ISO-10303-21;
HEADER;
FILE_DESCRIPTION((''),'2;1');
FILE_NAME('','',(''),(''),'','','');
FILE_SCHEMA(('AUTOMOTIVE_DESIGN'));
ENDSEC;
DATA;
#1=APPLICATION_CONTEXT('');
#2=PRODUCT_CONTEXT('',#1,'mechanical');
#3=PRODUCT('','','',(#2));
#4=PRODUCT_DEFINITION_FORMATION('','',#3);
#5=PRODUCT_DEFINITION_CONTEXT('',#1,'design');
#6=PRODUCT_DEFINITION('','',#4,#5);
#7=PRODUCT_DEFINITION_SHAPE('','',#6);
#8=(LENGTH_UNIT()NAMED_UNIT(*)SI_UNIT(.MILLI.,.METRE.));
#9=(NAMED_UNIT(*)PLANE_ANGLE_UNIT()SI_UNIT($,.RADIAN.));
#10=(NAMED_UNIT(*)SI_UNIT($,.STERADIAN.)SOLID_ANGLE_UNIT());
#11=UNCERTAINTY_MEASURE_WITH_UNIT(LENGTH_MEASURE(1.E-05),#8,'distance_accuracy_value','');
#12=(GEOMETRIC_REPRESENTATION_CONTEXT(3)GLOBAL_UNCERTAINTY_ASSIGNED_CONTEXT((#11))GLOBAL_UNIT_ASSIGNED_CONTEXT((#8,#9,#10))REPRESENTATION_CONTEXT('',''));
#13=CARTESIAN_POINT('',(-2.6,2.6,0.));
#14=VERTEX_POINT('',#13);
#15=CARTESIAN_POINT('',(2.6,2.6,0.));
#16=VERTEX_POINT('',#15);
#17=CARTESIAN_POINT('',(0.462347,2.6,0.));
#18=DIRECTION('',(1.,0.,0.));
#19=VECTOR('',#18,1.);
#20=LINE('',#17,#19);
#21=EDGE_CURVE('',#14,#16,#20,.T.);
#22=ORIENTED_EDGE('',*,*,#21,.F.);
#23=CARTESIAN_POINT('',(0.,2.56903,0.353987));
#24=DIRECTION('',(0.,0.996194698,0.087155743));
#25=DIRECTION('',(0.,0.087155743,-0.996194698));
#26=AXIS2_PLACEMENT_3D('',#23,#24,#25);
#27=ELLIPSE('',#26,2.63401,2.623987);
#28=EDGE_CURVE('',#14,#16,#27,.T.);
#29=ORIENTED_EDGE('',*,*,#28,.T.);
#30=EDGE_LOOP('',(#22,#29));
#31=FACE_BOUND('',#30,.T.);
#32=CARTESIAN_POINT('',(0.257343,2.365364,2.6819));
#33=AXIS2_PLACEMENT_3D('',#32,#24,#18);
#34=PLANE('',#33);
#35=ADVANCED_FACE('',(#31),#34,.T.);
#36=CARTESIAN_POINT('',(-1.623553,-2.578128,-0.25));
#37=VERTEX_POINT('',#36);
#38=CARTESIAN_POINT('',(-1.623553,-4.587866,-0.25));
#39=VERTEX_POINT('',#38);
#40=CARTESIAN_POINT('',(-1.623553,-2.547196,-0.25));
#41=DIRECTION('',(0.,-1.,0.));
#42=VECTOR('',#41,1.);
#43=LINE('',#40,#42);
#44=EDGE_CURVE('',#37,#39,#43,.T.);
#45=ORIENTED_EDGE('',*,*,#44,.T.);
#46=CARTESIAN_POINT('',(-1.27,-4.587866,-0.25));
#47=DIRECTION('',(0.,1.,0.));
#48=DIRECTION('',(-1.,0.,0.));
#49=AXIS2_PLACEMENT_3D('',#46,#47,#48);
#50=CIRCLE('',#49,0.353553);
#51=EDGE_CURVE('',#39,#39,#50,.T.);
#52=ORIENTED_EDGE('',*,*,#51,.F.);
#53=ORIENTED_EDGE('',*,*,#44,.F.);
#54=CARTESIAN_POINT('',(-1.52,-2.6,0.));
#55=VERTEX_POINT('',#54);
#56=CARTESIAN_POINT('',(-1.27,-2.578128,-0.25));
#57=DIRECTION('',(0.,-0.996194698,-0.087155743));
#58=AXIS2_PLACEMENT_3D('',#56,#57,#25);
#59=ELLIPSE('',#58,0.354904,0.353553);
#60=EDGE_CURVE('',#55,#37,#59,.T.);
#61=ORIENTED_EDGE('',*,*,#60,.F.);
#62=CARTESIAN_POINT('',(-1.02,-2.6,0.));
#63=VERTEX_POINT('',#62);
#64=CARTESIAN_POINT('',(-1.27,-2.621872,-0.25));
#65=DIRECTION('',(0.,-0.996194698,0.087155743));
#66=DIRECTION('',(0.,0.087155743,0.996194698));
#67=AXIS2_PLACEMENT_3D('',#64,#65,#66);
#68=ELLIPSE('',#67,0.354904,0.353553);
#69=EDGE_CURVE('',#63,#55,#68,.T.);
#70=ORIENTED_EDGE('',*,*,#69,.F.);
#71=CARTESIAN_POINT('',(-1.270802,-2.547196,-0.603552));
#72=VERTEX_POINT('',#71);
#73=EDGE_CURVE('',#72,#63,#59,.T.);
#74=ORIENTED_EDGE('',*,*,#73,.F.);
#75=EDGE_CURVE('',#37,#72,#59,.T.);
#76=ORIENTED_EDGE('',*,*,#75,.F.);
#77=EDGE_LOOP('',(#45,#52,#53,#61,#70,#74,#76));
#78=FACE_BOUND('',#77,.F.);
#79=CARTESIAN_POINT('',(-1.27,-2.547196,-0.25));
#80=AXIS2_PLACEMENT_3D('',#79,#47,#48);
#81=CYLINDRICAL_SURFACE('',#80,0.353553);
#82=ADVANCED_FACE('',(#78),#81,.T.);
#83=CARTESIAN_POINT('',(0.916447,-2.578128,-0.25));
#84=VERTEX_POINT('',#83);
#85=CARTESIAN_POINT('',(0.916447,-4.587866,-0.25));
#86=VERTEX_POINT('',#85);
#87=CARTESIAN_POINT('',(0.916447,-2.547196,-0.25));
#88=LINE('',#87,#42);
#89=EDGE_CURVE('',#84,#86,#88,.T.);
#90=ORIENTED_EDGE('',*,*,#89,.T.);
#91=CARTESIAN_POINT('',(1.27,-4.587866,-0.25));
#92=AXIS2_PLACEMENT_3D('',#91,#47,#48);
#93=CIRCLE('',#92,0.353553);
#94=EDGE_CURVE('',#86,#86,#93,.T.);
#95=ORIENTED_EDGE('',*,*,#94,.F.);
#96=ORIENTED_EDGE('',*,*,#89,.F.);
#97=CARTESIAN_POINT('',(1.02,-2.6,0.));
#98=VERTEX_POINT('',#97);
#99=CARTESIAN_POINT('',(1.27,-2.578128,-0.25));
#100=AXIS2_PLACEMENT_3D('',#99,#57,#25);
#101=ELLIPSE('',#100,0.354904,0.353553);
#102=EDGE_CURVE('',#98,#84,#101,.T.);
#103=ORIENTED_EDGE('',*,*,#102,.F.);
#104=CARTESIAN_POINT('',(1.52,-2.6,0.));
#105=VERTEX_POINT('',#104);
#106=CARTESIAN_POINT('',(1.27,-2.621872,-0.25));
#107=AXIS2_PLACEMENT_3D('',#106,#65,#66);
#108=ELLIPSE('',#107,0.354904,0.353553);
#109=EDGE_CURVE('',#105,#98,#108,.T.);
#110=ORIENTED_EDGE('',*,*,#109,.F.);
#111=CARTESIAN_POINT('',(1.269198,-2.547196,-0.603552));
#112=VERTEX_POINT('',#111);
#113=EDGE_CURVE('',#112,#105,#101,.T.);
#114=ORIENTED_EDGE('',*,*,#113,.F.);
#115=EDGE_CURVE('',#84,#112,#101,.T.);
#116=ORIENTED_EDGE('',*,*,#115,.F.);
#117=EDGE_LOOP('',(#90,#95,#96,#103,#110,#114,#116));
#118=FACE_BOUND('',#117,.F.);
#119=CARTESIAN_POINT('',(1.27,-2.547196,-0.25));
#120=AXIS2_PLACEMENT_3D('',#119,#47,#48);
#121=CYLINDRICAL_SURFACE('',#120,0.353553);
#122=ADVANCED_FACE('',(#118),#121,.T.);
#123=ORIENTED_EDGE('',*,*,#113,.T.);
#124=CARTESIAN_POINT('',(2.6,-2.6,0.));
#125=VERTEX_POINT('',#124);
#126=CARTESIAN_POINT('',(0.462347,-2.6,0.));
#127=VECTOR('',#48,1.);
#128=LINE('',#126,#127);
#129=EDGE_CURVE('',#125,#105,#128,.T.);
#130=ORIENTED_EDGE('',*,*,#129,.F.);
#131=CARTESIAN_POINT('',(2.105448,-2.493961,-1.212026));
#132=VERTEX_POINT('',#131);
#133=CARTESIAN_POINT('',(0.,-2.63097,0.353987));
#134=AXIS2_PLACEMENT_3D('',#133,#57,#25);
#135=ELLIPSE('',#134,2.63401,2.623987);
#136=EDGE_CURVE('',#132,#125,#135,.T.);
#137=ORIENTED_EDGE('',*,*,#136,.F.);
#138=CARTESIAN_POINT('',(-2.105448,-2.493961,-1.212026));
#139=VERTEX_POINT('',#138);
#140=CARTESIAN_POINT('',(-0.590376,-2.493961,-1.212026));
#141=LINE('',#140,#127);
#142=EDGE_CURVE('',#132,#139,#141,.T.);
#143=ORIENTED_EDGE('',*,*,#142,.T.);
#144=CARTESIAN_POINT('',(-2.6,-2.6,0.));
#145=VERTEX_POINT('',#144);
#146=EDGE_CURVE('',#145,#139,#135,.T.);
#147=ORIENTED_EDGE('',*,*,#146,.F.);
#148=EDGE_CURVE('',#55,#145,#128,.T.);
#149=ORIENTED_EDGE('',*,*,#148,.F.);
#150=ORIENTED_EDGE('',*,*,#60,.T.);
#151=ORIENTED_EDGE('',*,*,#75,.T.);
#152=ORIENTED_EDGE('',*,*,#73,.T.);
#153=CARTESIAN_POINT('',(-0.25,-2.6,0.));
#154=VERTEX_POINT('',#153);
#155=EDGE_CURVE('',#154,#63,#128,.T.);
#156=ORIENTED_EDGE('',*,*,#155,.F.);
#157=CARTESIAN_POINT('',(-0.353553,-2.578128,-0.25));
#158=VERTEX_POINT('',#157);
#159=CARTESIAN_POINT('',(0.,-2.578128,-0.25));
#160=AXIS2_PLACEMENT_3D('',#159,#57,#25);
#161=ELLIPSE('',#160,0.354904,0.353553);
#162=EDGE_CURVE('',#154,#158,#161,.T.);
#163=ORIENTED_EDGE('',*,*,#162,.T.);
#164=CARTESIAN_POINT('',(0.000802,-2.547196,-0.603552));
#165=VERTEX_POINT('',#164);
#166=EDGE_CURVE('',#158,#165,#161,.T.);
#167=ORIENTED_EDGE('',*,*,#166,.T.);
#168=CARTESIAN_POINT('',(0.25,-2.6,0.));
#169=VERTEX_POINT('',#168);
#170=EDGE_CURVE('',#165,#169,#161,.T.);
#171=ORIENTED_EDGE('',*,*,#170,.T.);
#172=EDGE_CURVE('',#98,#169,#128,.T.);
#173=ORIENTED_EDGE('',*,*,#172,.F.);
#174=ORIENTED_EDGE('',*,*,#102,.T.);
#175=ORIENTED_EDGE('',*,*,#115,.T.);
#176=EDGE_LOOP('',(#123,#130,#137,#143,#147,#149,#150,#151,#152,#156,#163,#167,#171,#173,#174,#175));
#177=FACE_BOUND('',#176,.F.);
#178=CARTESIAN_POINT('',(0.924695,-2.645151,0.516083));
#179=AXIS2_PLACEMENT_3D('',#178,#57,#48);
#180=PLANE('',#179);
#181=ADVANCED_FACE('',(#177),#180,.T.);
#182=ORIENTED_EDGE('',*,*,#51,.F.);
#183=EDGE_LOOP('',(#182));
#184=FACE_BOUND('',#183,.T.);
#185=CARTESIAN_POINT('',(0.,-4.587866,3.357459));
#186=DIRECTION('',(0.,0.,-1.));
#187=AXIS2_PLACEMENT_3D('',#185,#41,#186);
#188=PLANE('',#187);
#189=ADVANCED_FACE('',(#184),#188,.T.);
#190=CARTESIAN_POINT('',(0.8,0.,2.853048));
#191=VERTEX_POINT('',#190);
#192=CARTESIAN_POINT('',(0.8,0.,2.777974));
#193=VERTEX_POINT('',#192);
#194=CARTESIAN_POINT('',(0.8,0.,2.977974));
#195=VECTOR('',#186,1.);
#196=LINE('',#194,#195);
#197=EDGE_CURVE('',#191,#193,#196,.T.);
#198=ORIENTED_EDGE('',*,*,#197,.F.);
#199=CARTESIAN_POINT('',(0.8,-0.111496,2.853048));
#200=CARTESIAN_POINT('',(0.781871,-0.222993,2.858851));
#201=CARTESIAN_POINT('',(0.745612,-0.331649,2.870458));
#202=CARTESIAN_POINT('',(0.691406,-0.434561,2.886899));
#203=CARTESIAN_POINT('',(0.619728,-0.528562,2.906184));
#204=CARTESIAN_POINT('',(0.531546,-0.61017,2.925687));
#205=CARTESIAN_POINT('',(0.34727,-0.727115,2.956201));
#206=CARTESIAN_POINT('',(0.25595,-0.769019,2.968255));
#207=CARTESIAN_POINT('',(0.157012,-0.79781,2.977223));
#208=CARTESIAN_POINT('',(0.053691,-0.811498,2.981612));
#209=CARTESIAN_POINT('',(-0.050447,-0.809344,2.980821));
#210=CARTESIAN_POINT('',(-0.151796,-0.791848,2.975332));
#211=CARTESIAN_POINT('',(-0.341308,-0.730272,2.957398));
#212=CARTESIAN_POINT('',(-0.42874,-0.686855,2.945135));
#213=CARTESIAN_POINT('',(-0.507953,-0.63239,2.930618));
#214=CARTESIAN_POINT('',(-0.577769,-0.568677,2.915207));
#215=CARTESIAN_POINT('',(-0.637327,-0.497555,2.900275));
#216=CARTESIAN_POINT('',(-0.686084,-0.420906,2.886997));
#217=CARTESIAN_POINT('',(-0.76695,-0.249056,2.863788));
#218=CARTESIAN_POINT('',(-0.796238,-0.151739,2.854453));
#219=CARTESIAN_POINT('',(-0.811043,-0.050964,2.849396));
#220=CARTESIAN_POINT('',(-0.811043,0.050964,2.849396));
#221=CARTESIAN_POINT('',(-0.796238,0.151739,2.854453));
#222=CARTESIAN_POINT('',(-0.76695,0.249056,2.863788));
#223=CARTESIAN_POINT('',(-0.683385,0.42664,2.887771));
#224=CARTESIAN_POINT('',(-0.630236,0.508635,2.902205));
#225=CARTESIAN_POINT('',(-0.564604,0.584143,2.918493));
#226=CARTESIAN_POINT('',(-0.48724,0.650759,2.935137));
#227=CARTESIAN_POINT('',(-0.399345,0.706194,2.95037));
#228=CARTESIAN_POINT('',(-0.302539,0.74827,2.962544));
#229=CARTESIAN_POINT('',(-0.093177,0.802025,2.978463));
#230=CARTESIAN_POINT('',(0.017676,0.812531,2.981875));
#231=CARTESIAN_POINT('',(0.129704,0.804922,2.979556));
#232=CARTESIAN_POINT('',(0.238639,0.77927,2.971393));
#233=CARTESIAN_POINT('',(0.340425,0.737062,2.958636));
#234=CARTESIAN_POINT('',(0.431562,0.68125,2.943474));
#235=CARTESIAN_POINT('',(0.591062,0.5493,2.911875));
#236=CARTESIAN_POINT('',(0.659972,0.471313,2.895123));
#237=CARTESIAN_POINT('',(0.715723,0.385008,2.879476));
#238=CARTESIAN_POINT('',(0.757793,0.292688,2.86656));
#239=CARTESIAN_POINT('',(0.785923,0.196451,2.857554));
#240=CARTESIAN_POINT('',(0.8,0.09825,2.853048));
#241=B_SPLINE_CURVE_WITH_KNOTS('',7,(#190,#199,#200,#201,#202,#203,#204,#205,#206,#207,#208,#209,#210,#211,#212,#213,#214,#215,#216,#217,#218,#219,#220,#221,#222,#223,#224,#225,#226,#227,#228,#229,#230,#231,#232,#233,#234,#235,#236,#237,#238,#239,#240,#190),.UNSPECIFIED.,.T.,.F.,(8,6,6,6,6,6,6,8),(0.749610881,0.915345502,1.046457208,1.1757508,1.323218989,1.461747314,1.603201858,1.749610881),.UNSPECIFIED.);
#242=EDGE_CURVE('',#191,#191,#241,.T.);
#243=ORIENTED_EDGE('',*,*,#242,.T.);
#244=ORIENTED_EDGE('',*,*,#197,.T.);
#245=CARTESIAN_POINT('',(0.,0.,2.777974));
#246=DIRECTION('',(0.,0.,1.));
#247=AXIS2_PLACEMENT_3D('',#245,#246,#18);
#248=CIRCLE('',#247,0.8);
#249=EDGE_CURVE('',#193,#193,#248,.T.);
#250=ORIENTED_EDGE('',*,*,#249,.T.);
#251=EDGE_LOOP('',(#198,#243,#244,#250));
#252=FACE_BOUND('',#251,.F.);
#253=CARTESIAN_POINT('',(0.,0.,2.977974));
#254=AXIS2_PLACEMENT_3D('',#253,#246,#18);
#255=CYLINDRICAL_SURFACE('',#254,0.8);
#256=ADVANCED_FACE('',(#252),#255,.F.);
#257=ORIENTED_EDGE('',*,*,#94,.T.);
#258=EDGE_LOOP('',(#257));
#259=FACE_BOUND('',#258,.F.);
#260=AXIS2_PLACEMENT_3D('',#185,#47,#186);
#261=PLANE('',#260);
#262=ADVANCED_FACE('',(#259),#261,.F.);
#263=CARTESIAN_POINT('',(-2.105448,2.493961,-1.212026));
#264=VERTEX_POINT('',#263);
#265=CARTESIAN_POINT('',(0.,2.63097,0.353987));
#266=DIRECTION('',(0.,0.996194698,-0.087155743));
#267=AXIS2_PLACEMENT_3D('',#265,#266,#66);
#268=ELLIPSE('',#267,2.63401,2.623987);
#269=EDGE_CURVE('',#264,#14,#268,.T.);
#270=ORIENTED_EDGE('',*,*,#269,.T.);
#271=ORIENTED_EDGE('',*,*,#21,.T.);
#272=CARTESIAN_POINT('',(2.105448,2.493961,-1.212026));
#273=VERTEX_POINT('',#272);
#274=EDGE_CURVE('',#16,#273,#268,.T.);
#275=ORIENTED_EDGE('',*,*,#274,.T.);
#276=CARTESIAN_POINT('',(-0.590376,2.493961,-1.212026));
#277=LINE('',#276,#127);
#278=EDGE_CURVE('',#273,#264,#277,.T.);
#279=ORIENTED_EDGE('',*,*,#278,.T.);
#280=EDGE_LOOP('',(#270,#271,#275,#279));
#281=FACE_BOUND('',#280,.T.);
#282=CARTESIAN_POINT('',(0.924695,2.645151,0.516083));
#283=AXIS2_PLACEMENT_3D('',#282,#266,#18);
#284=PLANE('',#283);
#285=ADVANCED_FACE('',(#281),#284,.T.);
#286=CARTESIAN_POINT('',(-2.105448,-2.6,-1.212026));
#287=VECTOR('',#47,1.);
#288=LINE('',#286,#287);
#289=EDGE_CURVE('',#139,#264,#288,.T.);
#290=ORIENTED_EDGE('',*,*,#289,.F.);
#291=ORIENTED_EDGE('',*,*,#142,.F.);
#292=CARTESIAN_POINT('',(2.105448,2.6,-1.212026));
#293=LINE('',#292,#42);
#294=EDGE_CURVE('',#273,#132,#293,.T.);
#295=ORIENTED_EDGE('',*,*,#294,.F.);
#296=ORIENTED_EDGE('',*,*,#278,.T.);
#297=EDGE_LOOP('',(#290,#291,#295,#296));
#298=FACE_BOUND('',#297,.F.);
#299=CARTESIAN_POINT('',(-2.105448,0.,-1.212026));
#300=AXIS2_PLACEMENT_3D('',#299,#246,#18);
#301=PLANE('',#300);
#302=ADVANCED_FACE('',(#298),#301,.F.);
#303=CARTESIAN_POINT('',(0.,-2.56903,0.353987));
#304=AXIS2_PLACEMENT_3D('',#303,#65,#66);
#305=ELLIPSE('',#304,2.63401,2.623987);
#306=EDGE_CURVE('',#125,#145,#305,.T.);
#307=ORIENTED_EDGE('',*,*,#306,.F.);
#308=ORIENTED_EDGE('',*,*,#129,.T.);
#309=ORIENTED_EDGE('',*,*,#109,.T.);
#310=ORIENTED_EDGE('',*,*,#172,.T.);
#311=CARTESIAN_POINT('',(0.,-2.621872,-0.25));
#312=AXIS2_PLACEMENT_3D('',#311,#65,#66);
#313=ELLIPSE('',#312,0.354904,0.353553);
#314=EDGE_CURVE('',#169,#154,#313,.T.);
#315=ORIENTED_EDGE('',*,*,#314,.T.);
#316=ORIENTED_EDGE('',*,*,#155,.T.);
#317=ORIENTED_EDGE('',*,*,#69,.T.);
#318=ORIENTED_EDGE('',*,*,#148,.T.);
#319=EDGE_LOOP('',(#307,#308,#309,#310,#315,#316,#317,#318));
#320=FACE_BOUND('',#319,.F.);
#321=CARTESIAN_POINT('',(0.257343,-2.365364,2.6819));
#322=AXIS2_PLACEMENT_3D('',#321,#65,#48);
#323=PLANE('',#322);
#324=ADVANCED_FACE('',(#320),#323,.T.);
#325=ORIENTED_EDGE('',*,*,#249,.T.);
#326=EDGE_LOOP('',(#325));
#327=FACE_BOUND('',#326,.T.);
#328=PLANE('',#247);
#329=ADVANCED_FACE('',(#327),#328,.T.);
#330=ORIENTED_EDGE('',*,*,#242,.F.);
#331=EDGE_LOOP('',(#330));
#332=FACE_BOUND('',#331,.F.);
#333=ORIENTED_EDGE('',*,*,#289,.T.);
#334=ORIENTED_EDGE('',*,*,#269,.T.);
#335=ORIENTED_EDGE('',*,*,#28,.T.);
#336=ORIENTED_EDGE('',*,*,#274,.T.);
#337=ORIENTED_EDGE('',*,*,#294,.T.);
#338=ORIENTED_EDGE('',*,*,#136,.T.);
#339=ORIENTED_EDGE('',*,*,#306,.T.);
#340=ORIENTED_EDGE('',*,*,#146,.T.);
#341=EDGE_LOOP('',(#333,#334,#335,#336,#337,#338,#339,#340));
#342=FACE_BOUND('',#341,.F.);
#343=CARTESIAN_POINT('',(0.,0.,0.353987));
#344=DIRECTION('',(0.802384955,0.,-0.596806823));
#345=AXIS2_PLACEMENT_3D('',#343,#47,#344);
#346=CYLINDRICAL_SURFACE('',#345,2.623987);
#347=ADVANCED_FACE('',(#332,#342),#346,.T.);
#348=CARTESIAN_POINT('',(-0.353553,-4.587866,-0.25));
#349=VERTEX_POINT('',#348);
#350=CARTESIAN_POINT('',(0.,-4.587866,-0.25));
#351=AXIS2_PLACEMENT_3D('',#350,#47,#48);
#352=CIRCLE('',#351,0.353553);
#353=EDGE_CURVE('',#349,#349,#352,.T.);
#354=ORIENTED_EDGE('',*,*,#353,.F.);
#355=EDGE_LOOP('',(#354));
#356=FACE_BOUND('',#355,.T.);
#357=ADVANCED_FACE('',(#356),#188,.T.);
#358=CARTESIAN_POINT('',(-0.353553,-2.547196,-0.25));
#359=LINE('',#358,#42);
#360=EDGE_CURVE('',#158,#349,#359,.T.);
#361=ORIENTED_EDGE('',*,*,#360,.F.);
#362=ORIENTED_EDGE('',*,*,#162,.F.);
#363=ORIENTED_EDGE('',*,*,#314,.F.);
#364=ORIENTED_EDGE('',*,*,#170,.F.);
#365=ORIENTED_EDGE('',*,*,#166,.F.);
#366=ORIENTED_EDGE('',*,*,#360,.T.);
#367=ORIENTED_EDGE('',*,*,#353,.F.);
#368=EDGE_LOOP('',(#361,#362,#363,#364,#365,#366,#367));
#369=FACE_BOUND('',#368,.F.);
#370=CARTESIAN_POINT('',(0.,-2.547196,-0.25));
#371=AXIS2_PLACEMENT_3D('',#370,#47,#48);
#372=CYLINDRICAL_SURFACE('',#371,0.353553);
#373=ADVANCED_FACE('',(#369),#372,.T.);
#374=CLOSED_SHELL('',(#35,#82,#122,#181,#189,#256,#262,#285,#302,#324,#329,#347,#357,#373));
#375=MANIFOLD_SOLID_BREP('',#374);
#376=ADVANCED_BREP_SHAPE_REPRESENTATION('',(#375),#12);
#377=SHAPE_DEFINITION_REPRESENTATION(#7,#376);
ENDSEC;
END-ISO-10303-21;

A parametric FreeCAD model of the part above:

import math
import FreeCAD as App
import Part
import Sketcher

V = App.Vector
Q = App.Units.Quantity


def add_polygon(sketch, points):
    """Adds a closed chain of lines whose ends are joined by coincident constraints."""
    first, n = sketch.GeometryCount, len(points)
    for a, b in zip(points, points[1:] + points[:1]):
        sketch.addGeometry(Part.LineSegment(App.Vector(*a, 0), App.Vector(*b, 0)), False)
    for i in range(n):
        sketch.addConstraint(Sketcher.Constraint("Coincident", first + i, 2, first + (i + 1) % n, 1))

doc = App.newDocument("Part")
body = doc.addObject("PartDesign::Body", "Body")

# Sketch on XZ plane
sketch1 = body.newObject("Sketcher::SketchObject", "Sketch")
sketch1.AttachmentSupport = (doc.getObject("XZ_Plane"), [""])
sketch1.MapMode = "FlatFace"
sketch1.addGeometry(Part.LineSegment(V(2.105448, -1.212026, 0), V(-2.105448, -1.212026, 0)), False)
sketch1.addGeometry(Part.ArcOfCircle(Part.Circle(V(0, 0.353987, 0), V(0, 0, 1), 2.623987), math.radians(-36.641544), math.radians(216.641544)), False)
sketch1.addConstraint(Sketcher.Constraint("Coincident", 0, 1, 1, 1))
sketch1.addConstraint(Sketcher.Constraint("Coincident", 1, 2, 0, 2))
sketch1.addConstraint(Sketcher.Constraint("Horizontal", 0))
sketch1.addConstraint(Sketcher.Constraint("PointOnObject", 1, 3, -2))
sketch1.addConstraint(Sketcher.Constraint("Radius", 1, Q("2.623987 mm")))
sketch1.addConstraint(Sketcher.Constraint("DistanceX", 0, 2, 0, 1, Q("4.210895 mm")))
sketch1.addConstraint(Sketcher.Constraint("DistanceY", -1, 1, 1, 3, Q("0.353987 mm")))
pad1 = body.newObject("PartDesign::Pad", "Pad")
pad1.Profile = sketch1
pad1.Length = 5.2
pad1.Midplane = True

# Sketch on an angled plane
sketch2 = body.newObject("Sketcher::SketchObject", "Sketch001")
sketch2.Placement = App.Placement(V(0, 2.58025, -0.225743), App.Rotation(V(1, 0, 0), V(0, -0.087155743, -0.996194698), V(0, 0.996194698, -0.087155743), "ZXY"))
add_polygon(sketch2, [(-4.988484, 2.065926), (-4.988484, -3.555244), (6.837873, -3.555244), (6.837873, 2.065926)])  # lines 0-3
sketch2.addConstraint(Sketcher.Constraint("Vertical", 0))
sketch2.addConstraint(Sketcher.Constraint("Horizontal", 1))
sketch2.addConstraint(Sketcher.Constraint("Vertical", 2))
sketch2.addConstraint(Sketcher.Constraint("Horizontal", 3))
sketch2.addConstraint(Sketcher.Constraint("DistanceY", 0, 2, 0, 1, Q("5.621169 mm")))
sketch2.addConstraint(Sketcher.Constraint("DistanceX", 1, 1, 1, 2, Q("11.826356 mm")))
sketch2.addConstraint(Sketcher.Constraint("DistanceX", 0, 2, -1, 1, Q("4.988484 mm")))
sketch2.addConstraint(Sketcher.Constraint("DistanceY", 0, 2, -1, 1, Q("3.555244 mm")))
pocket1 = body.newObject("PartDesign::Pocket", "Pocket")
pocket1.Profile = sketch2
pocket1.Type = "ThroughAll"
pocket1.Reversed = True

# Sketch on an angled plane
sketch3 = body.newObject("Sketcher::SketchObject", "Sketch002")
sketch3.Placement = App.Placement(V(0, 2.58025, 0.225743), App.Rotation(V(1, 0, 0), V(0, 0.087155743, -0.996194698), V(0, 0.996194698, 0.087155743), "ZXY"))
add_polygon(sketch3, [(-5.588013, 1.161768), (-5.588013, -6.092846), (6.102698, -6.092846), (6.102698, 1.161768)])  # lines 0-3
sketch3.addConstraint(Sketcher.Constraint("Vertical", 0))
sketch3.addConstraint(Sketcher.Constraint("Horizontal", 1))
sketch3.addConstraint(Sketcher.Constraint("Vertical", 2))
sketch3.addConstraint(Sketcher.Constraint("Horizontal", 3))
sketch3.addConstraint(Sketcher.Constraint("DistanceX", 1, 1, 1, 2, Q("11.690711 mm")))
sketch3.addConstraint(Sketcher.Constraint("DistanceX", -1, 1, 1, 2, Q("6.102698 mm")))
sketch3.addConstraint(Sketcher.Constraint("DistanceY", 0, 2, 0, 1, Q("7.254613 mm")))
sketch3.addConstraint(Sketcher.Constraint("DistanceY", 0, 2, -1, 1, Q("6.092846 mm")))
pocket2 = body.newObject("PartDesign::Pocket", "Pocket001")
pocket2.Profile = sketch3
pocket2.Length = 5.2
pocket2.Reversed = True
doc.recompute()

mirrored = body.newObject("PartDesign::Mirrored", "Mirrored")
mirrored.Originals = [pocket1, pocket2]
mirrored.MirrorPlane = (doc.getObject("XZ_Plane"), [""])
body.Tip = mirrored

# Sketch on XZ plane
sketch4 = body.newObject("Sketcher::SketchObject", "Sketch003")
sketch4.AttachmentSupport = (doc.getObject("XZ_Plane"), [""])
sketch4.MapMode = "FlatFace"
sketch4.AttachmentOffset = App.Placement(V(0, 0, 2.547196), App.Rotation())
sketch4.addGeometry(Part.Circle(V(1.27, -0.25, 0), V(0, 0, 1), 0.353553), False)
sketch4.addGeometry(Part.Circle(V(0, -0.25, 0), V(0, 0, 1), 0.353553), False)
sketch4.addGeometry(Part.Circle(V(-1.27, -0.25, 0), V(0, 0, 1), 0.353553), False)
sketch4.addConstraint(Sketcher.Constraint("Equal", 0, 1))
sketch4.addConstraint(Sketcher.Constraint("Equal", 1, 2))
sketch4.addConstraint(Sketcher.Constraint("Symmetric", 0, 3, 2, 3, -2))
sketch4.addConstraint(Sketcher.Constraint("PointOnObject", 1, 3, -2))
sketch4.addConstraint(Sketcher.Constraint("Horizontal", 0, 3, 1, 3))
sketch4.addConstraint(Sketcher.Constraint("DistanceX", -1, 1, 0, 3, Q("1.27 mm")))
sketch4.addConstraint(Sketcher.Constraint("DistanceY", 0, 3, -1, 1, Q("0.25 mm")))
sketch4.addConstraint(Sketcher.Constraint("Diameter", 0, Q("0.707107 mm")))
pad2 = body.newObject("PartDesign::Pad", "Pad001")
pad2.Profile = sketch4
pad2.Length = 12.752804

# Sketch on XY plane
sketch5 = body.newObject("Sketcher::SketchObject", "Sketch004")
sketch5.AttachmentSupport = (doc.getObject("XY_Plane"), [""])
sketch5.MapMode = "FlatFace"
sketch5.AttachmentOffset = App.Placement(V(0, 0, 2.977974), App.Rotation())
sketch5.addGeometry(Part.Circle(V(0, 0, 0), V(0, 0, 1), 0.8), False)
sketch5.addConstraint(Sketcher.Constraint("Coincident", 0, 3, -1, 1))
sketch5.addConstraint(Sketcher.Constraint("Diameter", 0, Q("1.6 mm")))
pocket3 = body.newObject("PartDesign::Pocket", "Pocket002")
pocket3.Profile = sketch5
pocket3.Length = 0.2

# Sketch on YZ plane
sketch6 = body.newObject("Sketcher::SketchObject", "Sketch005")
sketch6.AttachmentSupport = (doc.getObject("YZ_Plane"), [""])
sketch6.MapMode = "FlatFace"
add_polygon(sketch6, [(-4.587866, 3.357459), (-16.085477, 3.357459), (-16.085477, -3.566102), (-4.587866, -3.566102)])  # lines 0-3
sketch6.addConstraint(Sketcher.Constraint("Horizontal", 0))
sketch6.addConstraint(Sketcher.Constraint("Vertical", 1))
sketch6.addConstraint(Sketcher.Constraint("Horizontal", 2))
sketch6.addConstraint(Sketcher.Constraint("Vertical", 3))
sketch6.addConstraint(Sketcher.Constraint("DistanceX", 0, 2, 0, 1, Q("11.497611 mm")))
sketch6.addConstraint(Sketcher.Constraint("DistanceY", 1, 2, 1, 1, Q("6.923561 mm")))
sketch6.addConstraint(Sketcher.Constraint("DistanceY", 1, 2, -1, 1, Q("3.566102 mm")))
sketch6.addConstraint(Sketcher.Constraint("DistanceX", 0, 2, -1, 1, Q("16.085477 mm")))
pocket4 = body.newObject("PartDesign::Pocket", "Pocket003")
pocket4.Profile = sketch6
pocket4.Type = "ThroughAll"
pocket4.Midplane = True

doc.recompute()
